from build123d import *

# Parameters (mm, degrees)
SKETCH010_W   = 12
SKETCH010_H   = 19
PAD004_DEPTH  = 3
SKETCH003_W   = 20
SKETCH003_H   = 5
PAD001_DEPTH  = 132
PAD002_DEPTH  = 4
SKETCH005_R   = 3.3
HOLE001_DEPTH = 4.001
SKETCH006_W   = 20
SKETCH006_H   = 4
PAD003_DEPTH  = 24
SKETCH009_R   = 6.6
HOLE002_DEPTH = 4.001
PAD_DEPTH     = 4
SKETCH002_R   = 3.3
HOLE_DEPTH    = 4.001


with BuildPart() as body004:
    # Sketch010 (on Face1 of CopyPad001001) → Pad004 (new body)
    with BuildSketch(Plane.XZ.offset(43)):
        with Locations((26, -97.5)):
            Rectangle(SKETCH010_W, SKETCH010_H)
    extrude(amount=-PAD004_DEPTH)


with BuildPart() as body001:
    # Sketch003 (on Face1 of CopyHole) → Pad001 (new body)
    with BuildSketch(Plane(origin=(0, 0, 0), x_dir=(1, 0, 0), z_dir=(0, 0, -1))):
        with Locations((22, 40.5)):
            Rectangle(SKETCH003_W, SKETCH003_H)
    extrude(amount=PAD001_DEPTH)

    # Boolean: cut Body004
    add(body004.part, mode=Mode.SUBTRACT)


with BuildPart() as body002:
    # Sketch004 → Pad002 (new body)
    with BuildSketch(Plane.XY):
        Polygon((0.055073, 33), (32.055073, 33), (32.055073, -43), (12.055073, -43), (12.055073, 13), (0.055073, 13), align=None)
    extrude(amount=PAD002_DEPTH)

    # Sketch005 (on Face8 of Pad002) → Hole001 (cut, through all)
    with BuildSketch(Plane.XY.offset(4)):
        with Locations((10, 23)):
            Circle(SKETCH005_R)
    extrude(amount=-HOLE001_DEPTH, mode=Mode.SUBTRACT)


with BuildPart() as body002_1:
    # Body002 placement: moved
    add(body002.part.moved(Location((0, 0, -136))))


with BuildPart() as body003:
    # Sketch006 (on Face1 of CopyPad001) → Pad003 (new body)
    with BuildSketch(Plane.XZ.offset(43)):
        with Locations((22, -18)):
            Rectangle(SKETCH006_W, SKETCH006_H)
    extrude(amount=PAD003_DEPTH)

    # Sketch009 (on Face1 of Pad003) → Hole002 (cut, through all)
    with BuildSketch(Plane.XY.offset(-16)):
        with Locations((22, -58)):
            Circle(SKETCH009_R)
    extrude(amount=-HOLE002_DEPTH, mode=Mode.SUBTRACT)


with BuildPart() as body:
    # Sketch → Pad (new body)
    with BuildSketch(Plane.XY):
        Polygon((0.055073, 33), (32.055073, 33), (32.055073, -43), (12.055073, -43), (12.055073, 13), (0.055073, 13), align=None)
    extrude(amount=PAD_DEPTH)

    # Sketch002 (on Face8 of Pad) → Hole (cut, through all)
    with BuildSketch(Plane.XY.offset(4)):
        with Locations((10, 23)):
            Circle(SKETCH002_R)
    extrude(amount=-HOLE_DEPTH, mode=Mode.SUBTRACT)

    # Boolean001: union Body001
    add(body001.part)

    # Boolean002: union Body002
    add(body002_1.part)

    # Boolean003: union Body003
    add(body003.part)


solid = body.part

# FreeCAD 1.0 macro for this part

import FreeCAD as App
import Part
import Sketcher
from FreeCAD import Vector
Q = App.Units.Quantity

doc = App.newDocument("Part")
params = doc.addObject("Spreadsheet::Sheet", "Params")
for row, (alias, value) in enumerate([
    ("sketch1_width", "12 mm"),
    ("sketch1_height", "19 mm"),
    ("pad1_length", "3 mm"),
    ("sketch2_width", "20 mm"),
    ("sketch2_height", "5 mm"),
    ("pad2_length", "132 mm"),
    ("sketch3_width", "32 mm"),
    ("sketch3_width2", "12 mm"),
    ("sketch3_height", "56 mm"),
    ("pad3_length", "4 mm"),
    ("sketch4_diameter", "6.6 mm"),
    ("sketch5_width", "20 mm"),
    ("sketch5_height", "4 mm"),
    ("pad4_length", "24 mm"),
    ("sketch6_diameter", "13.2 mm"),
    ("sketch7_width", "32 mm"),
    ("sketch7_width2", "12 mm"),
    ("sketch7_height", "56 mm"),
    ("pad5_length", "4 mm"),
    ("sketch8_diameter", "6.6 mm"),
], start=1):
    params.set(f"A{row}", alias)
    params.set(f"B{row}", "=" + value)
    params.setAlias(f"B{row}", alias)

body = doc.addObject("PartDesign::Body", "Body")

sketch1 = body.newObject("Sketcher::SketchObject", "Sketch")
sketch1.AttachmentSupport = (doc.getObject("XZ_Plane"), [""])
sketch1.MapMode = "FlatFace"
sketch1.AttachmentOffset = App.Placement(Vector(0, 0, 43), App.Rotation())
sketch1.addGeometry([
    Part.LineSegment(Vector(20, -88, 0), Vector(20, -107, 0)),
    Part.LineSegment(Vector(20, -107, 0), Vector(32, -107, 0)),
    Part.LineSegment(Vector(32, -107, 0), Vector(32, -88, 0)),
    Part.LineSegment(Vector(32, -88, 0), Vector(20, -88, 0)),
], False)
sketch1.addConstraint([
    Sketcher.Constraint("Coincident", 0, 2, 1, 1),
    Sketcher.Constraint("Coincident", 1, 2, 2, 1),
    Sketcher.Constraint("Coincident", 2, 2, 3, 1),
    Sketcher.Constraint("Coincident", 3, 2, 0, 1),
    Sketcher.Constraint("Vertical", 0),
    Sketcher.Constraint("Horizontal", 1),
    Sketcher.Constraint("Vertical", 2),
    Sketcher.Constraint("Horizontal", 3),
    Sketcher.Constraint("DistanceX", 1, 1, 1, 2, Q("12 mm")),
    Sketcher.Constraint("DistanceY", 0, 2, 0, 1, Q("19 mm")),
    Sketcher.Constraint("DistanceX", -1, 1, 0, 2, Q("20 mm")),
    Sketcher.Constraint("DistanceY", 0, 2, -1, 1, Q("107 mm")),
])
sketch1.setExpression("Constraints[8]", "Params.sketch1_width")
sketch1.setExpression("Constraints[9]", "Params.sketch1_height")
pad1 = body.newObject("PartDesign::Pad", "Pad")
pad1.Profile = sketch1
pad1.setExpression("Length", "Params.pad1_length")
pad1.Reversed = True
body2 = doc.addObject("PartDesign::Body", "Body001")

sketch2 = body2.newObject("Sketcher::SketchObject", "Sketch001")
sketch2.AttachmentSupport = (doc.getObject("XY_Plane001"), [""])
sketch2.MapMode = "FlatFace"
sketch2.addGeometry([
    Part.LineSegment(Vector(12, -43, 0), Vector(12, -38, 0)),
    Part.LineSegment(Vector(12, -38, 0), Vector(32, -38, 0)),
    Part.LineSegment(Vector(32, -38, 0), Vector(32, -43, 0)),
    Part.LineSegment(Vector(32, -43, 0), Vector(12, -43, 0)),
], False)
sketch2.addConstraint([
    Sketcher.Constraint("Coincident", 0, 2, 1, 1),
    Sketcher.Constraint("Coincident", 1, 2, 2, 1),
    Sketcher.Constraint("Coincident", 2, 2, 3, 1),
    Sketcher.Constraint("Coincident", 3, 2, 0, 1),
    Sketcher.Constraint("Vertical", 0),
    Sketcher.Constraint("Horizontal", 1),
    Sketcher.Constraint("Vertical", 2),
    Sketcher.Constraint("Horizontal", 3),
    Sketcher.Constraint("DistanceX", 1, 1, 1, 2, Q("20 mm")),
    Sketcher.Constraint("DistanceY", 0, 1, 0, 2, Q("5 mm")),
    Sketcher.Constraint("DistanceX", -1, 1, 0, 2, Q("12 mm")),
    Sketcher.Constraint("DistanceY", 0, 2, -1, 1, Q("38 mm")),
])
sketch2.setExpression("Constraints[8]", "Params.sketch2_width")
sketch2.setExpression("Constraints[9]", "Params.sketch2_height")
pad2 = body2.newObject("PartDesign::Pad", "Pad001")
pad2.Profile = sketch2
pad2.setExpression("Length", "Params.pad2_length")
pad2.Reversed = True
doc.recompute()

boolean = body2.newObject("PartDesign::Boolean", "Boolean")
boolean.Type = "Cut"
boolean.addObjects([body])
body3 = doc.addObject("PartDesign::Body", "Body002")

sketch3 = body3.newObject("Sketcher::SketchObject", "Sketch002")
sketch3.AttachmentSupport = (doc.getObject("XY_Plane002"), [""])
sketch3.MapMode = "FlatFace"
sketch3.addGeometry([
    Part.LineSegment(Vector(32, 33, 0), Vector(0, 33, 0)),
    Part.LineSegment(Vector(0, 33, 0), Vector(0, 13, 0)),
    Part.LineSegment(Vector(0, 13, 0), Vector(12, 13, 0)),
    Part.LineSegment(Vector(12, 13, 0), Vector(12, -43, 0)),
    Part.LineSegment(Vector(12, -43, 0), Vector(32, -43, 0)),
    Part.LineSegment(Vector(32, -43, 0), Vector(32, 33, 0)),
], False)
sketch3.addConstraint([
    Sketcher.Constraint("Coincident", 0, 2, 1, 1),
    Sketcher.Constraint("Coincident", 1, 2, 2, 1),
    Sketcher.Constraint("Coincident", 2, 2, 3, 1),
    Sketcher.Constraint("Coincident", 3, 2, 4, 1),
    Sketcher.Constraint("Coincident", 4, 2, 5, 1),
    Sketcher.Constraint("Coincident", 5, 2, 0, 1),
    Sketcher.Constraint("Horizontal", 0),
    Sketcher.Constraint("Vertical", 1),
    Sketcher.Constraint("Horizontal", 2),
    Sketcher.Constraint("Vertical", 3),
    Sketcher.Constraint("Horizontal", 4),
    Sketcher.Constraint("Vertical", 5),
    Sketcher.Constraint("Equal", 4, 1),
    Sketcher.Constraint("DistanceX", 0, 2, 0, 1, Q("32 mm")),
    Sketcher.Constraint("DistanceX", 2, 1, 2, 2, Q("12 mm")),
    Sketcher.Constraint("DistanceY", 3, 2, 3, 1, Q("56 mm")),
    Sketcher.Constraint("DistanceY", -1, 1, 0, 2, Q("33 mm")),
    Sketcher.Constraint("DistanceX", -1, 1, 0, 2, Q("0.055073 mm")),
])
sketch3.setExpression("Constraints[13]", "Params.sketch3_width")
sketch3.setExpression("Constraints[14]", "Params.sketch3_width2")
sketch3.setExpression("Constraints[15]", "Params.sketch3_height")
pad3 = body3.newObject("PartDesign::Pad", "Pad002")
pad3.Profile = sketch3
pad3.setExpression("Length", "Params.pad3_length")

sketch4 = body3.newObject("Sketcher::SketchObject", "Sketch003")
sketch4.AttachmentSupport = (doc.getObject("XY_Plane002"), [""])
sketch4.MapMode = "FlatFace"
sketch4.AttachmentOffset = App.Placement(Vector(0, 0, 4), App.Rotation())
sketch4.addGeometry(Part.Circle(Vector(10, 23, 0), Vector(0, 0, 1), 3.3), False)
sketch4.addConstraint([
    Sketcher.Constraint("Diameter", 0, Q("6.6 mm")),
    Sketcher.Constraint("DistanceX", -1, 1, 0, 3, Q("10 mm")),
    Sketcher.Constraint("DistanceY", -1, 1, 0, 3, Q("23 mm")),
])
sketch4.setExpression("Constraints[0]", "Params.sketch4_diameter")
pocket1 = body3.newObject("PartDesign::Pocket", "Pocket")
pocket1.Profile = sketch4
pocket1.Type = "ThroughAll"
body4 = doc.addObject("PartDesign::Body", "Body003")
doc.recompute()

body3.Placement = App.Placement(Vector(0, 0, -136), App.Rotation(Vector(0, 0, 1), 0))
boolean2 = body4.newObject("PartDesign::Boolean", "Boolean001")
boolean2.Type = "Fuse"
boolean2.addObjects([body3])
body5 = doc.addObject("PartDesign::Body", "Body004")

sketch5 = body5.newObject("Sketcher::SketchObject", "Sketch004")
sketch5.AttachmentSupport = (doc.getObject("XZ_Plane004"), [""])
sketch5.MapMode = "FlatFace"
sketch5.AttachmentOffset = App.Placement(Vector(0, 0, 43), App.Rotation())
sketch5.addGeometry([
    Part.LineSegment(Vector(12, -16, 0), Vector(12, -20, 0)),
    Part.LineSegment(Vector(12, -20, 0), Vector(32, -20, 0)),
    Part.LineSegment(Vector(32, -20, 0), Vector(32, -16, 0)),
    Part.LineSegment(Vector(32, -16, 0), Vector(12, -16, 0)),
], False)
sketch5.addConstraint([
    Sketcher.Constraint("Coincident", 0, 2, 1, 1),
    Sketcher.Constraint("Coincident", 1, 2, 2, 1),
    Sketcher.Constraint("Coincident", 2, 2, 3, 1),
    Sketcher.Constraint("Coincident", 3, 2, 0, 1),
    Sketcher.Constraint("Vertical", 0),
    Sketcher.Constraint("Horizontal", 1),
    Sketcher.Constraint("Vertical", 2),
    Sketcher.Constraint("Horizontal", 3),
    Sketcher.Constraint("DistanceX", 1, 1, 1, 2, Q("20 mm")),
    Sketcher.Constraint("DistanceY", 0, 2, 0, 1, Q("4 mm")),
    Sketcher.Constraint("DistanceX", -1, 1, 0, 2, Q("12 mm")),
    Sketcher.Constraint("DistanceY", 0, 2, -1, 1, Q("20 mm")),
])
sketch5.setExpression("Constraints[8]", "Params.sketch5_width")
sketch5.setExpression("Constraints[9]", "Params.sketch5_height")
pad4 = body5.newObject("PartDesign::Pad", "Pad003")
pad4.Profile = sketch5
pad4.setExpression("Length", "Params.pad4_length")

sketch6 = body5.newObject("Sketcher::SketchObject", "Sketch005")
sketch6.AttachmentSupport = (doc.getObject("XY_Plane004"), [""])
sketch6.MapMode = "FlatFace"
sketch6.AttachmentOffset = App.Placement(Vector(0, 0, -16), App.Rotation())
sketch6.addGeometry(Part.Circle(Vector(22, -58, 0), Vector(0, 0, 1), 7), False)
sketch6.addConstraint([
    Sketcher.Constraint("Diameter", 0, Q("13.2 mm")),
    Sketcher.Constraint("DistanceX", -1, 1, 0, 3, Q("22 mm")),
    Sketcher.Constraint("DistanceY", 0, 3, -1, 1, Q("58 mm")),
])
sketch6.setExpression("Constraints[0]", "Params.sketch6_diameter")
pocket2 = body5.newObject("PartDesign::Pocket", "Pocket001")
pocket2.Profile = sketch6
pocket2.Type = "ThroughAll"
body6 = doc.addObject("PartDesign::Body", "Body005")

sketch7 = body6.newObject("Sketcher::SketchObject", "Sketch006")
sketch7.AttachmentSupport = (doc.getObject("XY_Plane005"), [""])
sketch7.MapMode = "FlatFace"
sketch7.addGeometry([
    Part.LineSegment(Vector(32, 33, 0), Vector(0, 33, 0)),
    Part.LineSegment(Vector(0, 33, 0), Vector(0, 13, 0)),
    Part.LineSegment(Vector(0, 13, 0), Vector(12, 13, 0)),
    Part.LineSegment(Vector(12, 13, 0), Vector(12, -43, 0)),
    Part.LineSegment(Vector(12, -43, 0), Vector(32, -43, 0)),
    Part.LineSegment(Vector(32, -43, 0), Vector(32, 33, 0)),
], False)
sketch7.addConstraint([
    Sketcher.Constraint("Coincident", 0, 2, 1, 1),
    Sketcher.Constraint("Coincident", 1, 2, 2, 1),
    Sketcher.Constraint("Coincident", 2, 2, 3, 1),
    Sketcher.Constraint("Coincident", 3, 2, 4, 1),
    Sketcher.Constraint("Coincident", 4, 2, 5, 1),
    Sketcher.Constraint("Coincident", 5, 2, 0, 1),
    Sketcher.Constraint("Horizontal", 0),
    Sketcher.Constraint("Vertical", 1),
    Sketcher.Constraint("Horizontal", 2),
    Sketcher.Constraint("Vertical", 3),
    Sketcher.Constraint("Horizontal", 4),
    Sketcher.Constraint("Vertical", 5),
    Sketcher.Constraint("Equal", 4, 1),
    Sketcher.Constraint("DistanceX", 0, 2, 0, 1, Q("32 mm")),
    Sketcher.Constraint("DistanceX", 2, 1, 2, 2, Q("12 mm")),
    Sketcher.Constraint("DistanceY", 3, 2, 3, 1, Q("56 mm")),
    Sketcher.Constraint("DistanceY", -1, 1, 0, 2, Q("33 mm")),
    Sketcher.Constraint("DistanceX", -1, 1, 0, 2, Q("0.055073 mm")),
])
sketch7.setExpression("Constraints[13]", "Params.sketch7_width")
sketch7.setExpression("Constraints[14]", "Params.sketch7_width2")
sketch7.setExpression("Constraints[15]", "Params.sketch7_height")
pad5 = body6.newObject("PartDesign::Pad", "Pad004")
pad5.Profile = sketch7
pad5.setExpression("Length", "Params.pad5_length")

sketch8 = body6.newObject("Sketcher::SketchObject", "Sketch007")
sketch8.AttachmentSupport = (doc.getObject("XY_Plane005"), [""])
sketch8.MapMode = "FlatFace"
sketch8.AttachmentOffset = App.Placement(Vector(0, 0, 4), App.Rotation())
sketch8.addGeometry(Part.Circle(Vector(10, 23, 0), Vector(0, 0, 1), 3.3), False)
sketch8.addConstraint([
    Sketcher.Constraint("Diameter", 0, Q("6.6 mm")),
    Sketcher.Constraint("DistanceX", -1, 1, 0, 3, Q("10 mm")),
    Sketcher.Constraint("DistanceY", -1, 1, 0, 3, Q("23 mm")),
])
sketch8.setExpression("Constraints[0]", "Params.sketch8_diameter")
pocket3 = body6.newObject("PartDesign::Pocket", "Pocket002")
pocket3.Profile = sketch8
pocket3.Type = "ThroughAll"
doc.recompute()

boolean3 = body6.newObject("PartDesign::Boolean", "Boolean002")
boolean3.Type = "Fuse"
boolean3.addObjects([body2])
doc.recompute()

boolean4 = body6.newObject("PartDesign::Boolean", "Boolean003")
boolean4.Type = "Fuse"
boolean4.addObjects([body4])
doc.recompute()

boolean5 = body6.newObject("PartDesign::Boolean", "Boolean004")
boolean5.Type = "Fuse"
boolean5.addObjects([body5])

doc.recompute()
